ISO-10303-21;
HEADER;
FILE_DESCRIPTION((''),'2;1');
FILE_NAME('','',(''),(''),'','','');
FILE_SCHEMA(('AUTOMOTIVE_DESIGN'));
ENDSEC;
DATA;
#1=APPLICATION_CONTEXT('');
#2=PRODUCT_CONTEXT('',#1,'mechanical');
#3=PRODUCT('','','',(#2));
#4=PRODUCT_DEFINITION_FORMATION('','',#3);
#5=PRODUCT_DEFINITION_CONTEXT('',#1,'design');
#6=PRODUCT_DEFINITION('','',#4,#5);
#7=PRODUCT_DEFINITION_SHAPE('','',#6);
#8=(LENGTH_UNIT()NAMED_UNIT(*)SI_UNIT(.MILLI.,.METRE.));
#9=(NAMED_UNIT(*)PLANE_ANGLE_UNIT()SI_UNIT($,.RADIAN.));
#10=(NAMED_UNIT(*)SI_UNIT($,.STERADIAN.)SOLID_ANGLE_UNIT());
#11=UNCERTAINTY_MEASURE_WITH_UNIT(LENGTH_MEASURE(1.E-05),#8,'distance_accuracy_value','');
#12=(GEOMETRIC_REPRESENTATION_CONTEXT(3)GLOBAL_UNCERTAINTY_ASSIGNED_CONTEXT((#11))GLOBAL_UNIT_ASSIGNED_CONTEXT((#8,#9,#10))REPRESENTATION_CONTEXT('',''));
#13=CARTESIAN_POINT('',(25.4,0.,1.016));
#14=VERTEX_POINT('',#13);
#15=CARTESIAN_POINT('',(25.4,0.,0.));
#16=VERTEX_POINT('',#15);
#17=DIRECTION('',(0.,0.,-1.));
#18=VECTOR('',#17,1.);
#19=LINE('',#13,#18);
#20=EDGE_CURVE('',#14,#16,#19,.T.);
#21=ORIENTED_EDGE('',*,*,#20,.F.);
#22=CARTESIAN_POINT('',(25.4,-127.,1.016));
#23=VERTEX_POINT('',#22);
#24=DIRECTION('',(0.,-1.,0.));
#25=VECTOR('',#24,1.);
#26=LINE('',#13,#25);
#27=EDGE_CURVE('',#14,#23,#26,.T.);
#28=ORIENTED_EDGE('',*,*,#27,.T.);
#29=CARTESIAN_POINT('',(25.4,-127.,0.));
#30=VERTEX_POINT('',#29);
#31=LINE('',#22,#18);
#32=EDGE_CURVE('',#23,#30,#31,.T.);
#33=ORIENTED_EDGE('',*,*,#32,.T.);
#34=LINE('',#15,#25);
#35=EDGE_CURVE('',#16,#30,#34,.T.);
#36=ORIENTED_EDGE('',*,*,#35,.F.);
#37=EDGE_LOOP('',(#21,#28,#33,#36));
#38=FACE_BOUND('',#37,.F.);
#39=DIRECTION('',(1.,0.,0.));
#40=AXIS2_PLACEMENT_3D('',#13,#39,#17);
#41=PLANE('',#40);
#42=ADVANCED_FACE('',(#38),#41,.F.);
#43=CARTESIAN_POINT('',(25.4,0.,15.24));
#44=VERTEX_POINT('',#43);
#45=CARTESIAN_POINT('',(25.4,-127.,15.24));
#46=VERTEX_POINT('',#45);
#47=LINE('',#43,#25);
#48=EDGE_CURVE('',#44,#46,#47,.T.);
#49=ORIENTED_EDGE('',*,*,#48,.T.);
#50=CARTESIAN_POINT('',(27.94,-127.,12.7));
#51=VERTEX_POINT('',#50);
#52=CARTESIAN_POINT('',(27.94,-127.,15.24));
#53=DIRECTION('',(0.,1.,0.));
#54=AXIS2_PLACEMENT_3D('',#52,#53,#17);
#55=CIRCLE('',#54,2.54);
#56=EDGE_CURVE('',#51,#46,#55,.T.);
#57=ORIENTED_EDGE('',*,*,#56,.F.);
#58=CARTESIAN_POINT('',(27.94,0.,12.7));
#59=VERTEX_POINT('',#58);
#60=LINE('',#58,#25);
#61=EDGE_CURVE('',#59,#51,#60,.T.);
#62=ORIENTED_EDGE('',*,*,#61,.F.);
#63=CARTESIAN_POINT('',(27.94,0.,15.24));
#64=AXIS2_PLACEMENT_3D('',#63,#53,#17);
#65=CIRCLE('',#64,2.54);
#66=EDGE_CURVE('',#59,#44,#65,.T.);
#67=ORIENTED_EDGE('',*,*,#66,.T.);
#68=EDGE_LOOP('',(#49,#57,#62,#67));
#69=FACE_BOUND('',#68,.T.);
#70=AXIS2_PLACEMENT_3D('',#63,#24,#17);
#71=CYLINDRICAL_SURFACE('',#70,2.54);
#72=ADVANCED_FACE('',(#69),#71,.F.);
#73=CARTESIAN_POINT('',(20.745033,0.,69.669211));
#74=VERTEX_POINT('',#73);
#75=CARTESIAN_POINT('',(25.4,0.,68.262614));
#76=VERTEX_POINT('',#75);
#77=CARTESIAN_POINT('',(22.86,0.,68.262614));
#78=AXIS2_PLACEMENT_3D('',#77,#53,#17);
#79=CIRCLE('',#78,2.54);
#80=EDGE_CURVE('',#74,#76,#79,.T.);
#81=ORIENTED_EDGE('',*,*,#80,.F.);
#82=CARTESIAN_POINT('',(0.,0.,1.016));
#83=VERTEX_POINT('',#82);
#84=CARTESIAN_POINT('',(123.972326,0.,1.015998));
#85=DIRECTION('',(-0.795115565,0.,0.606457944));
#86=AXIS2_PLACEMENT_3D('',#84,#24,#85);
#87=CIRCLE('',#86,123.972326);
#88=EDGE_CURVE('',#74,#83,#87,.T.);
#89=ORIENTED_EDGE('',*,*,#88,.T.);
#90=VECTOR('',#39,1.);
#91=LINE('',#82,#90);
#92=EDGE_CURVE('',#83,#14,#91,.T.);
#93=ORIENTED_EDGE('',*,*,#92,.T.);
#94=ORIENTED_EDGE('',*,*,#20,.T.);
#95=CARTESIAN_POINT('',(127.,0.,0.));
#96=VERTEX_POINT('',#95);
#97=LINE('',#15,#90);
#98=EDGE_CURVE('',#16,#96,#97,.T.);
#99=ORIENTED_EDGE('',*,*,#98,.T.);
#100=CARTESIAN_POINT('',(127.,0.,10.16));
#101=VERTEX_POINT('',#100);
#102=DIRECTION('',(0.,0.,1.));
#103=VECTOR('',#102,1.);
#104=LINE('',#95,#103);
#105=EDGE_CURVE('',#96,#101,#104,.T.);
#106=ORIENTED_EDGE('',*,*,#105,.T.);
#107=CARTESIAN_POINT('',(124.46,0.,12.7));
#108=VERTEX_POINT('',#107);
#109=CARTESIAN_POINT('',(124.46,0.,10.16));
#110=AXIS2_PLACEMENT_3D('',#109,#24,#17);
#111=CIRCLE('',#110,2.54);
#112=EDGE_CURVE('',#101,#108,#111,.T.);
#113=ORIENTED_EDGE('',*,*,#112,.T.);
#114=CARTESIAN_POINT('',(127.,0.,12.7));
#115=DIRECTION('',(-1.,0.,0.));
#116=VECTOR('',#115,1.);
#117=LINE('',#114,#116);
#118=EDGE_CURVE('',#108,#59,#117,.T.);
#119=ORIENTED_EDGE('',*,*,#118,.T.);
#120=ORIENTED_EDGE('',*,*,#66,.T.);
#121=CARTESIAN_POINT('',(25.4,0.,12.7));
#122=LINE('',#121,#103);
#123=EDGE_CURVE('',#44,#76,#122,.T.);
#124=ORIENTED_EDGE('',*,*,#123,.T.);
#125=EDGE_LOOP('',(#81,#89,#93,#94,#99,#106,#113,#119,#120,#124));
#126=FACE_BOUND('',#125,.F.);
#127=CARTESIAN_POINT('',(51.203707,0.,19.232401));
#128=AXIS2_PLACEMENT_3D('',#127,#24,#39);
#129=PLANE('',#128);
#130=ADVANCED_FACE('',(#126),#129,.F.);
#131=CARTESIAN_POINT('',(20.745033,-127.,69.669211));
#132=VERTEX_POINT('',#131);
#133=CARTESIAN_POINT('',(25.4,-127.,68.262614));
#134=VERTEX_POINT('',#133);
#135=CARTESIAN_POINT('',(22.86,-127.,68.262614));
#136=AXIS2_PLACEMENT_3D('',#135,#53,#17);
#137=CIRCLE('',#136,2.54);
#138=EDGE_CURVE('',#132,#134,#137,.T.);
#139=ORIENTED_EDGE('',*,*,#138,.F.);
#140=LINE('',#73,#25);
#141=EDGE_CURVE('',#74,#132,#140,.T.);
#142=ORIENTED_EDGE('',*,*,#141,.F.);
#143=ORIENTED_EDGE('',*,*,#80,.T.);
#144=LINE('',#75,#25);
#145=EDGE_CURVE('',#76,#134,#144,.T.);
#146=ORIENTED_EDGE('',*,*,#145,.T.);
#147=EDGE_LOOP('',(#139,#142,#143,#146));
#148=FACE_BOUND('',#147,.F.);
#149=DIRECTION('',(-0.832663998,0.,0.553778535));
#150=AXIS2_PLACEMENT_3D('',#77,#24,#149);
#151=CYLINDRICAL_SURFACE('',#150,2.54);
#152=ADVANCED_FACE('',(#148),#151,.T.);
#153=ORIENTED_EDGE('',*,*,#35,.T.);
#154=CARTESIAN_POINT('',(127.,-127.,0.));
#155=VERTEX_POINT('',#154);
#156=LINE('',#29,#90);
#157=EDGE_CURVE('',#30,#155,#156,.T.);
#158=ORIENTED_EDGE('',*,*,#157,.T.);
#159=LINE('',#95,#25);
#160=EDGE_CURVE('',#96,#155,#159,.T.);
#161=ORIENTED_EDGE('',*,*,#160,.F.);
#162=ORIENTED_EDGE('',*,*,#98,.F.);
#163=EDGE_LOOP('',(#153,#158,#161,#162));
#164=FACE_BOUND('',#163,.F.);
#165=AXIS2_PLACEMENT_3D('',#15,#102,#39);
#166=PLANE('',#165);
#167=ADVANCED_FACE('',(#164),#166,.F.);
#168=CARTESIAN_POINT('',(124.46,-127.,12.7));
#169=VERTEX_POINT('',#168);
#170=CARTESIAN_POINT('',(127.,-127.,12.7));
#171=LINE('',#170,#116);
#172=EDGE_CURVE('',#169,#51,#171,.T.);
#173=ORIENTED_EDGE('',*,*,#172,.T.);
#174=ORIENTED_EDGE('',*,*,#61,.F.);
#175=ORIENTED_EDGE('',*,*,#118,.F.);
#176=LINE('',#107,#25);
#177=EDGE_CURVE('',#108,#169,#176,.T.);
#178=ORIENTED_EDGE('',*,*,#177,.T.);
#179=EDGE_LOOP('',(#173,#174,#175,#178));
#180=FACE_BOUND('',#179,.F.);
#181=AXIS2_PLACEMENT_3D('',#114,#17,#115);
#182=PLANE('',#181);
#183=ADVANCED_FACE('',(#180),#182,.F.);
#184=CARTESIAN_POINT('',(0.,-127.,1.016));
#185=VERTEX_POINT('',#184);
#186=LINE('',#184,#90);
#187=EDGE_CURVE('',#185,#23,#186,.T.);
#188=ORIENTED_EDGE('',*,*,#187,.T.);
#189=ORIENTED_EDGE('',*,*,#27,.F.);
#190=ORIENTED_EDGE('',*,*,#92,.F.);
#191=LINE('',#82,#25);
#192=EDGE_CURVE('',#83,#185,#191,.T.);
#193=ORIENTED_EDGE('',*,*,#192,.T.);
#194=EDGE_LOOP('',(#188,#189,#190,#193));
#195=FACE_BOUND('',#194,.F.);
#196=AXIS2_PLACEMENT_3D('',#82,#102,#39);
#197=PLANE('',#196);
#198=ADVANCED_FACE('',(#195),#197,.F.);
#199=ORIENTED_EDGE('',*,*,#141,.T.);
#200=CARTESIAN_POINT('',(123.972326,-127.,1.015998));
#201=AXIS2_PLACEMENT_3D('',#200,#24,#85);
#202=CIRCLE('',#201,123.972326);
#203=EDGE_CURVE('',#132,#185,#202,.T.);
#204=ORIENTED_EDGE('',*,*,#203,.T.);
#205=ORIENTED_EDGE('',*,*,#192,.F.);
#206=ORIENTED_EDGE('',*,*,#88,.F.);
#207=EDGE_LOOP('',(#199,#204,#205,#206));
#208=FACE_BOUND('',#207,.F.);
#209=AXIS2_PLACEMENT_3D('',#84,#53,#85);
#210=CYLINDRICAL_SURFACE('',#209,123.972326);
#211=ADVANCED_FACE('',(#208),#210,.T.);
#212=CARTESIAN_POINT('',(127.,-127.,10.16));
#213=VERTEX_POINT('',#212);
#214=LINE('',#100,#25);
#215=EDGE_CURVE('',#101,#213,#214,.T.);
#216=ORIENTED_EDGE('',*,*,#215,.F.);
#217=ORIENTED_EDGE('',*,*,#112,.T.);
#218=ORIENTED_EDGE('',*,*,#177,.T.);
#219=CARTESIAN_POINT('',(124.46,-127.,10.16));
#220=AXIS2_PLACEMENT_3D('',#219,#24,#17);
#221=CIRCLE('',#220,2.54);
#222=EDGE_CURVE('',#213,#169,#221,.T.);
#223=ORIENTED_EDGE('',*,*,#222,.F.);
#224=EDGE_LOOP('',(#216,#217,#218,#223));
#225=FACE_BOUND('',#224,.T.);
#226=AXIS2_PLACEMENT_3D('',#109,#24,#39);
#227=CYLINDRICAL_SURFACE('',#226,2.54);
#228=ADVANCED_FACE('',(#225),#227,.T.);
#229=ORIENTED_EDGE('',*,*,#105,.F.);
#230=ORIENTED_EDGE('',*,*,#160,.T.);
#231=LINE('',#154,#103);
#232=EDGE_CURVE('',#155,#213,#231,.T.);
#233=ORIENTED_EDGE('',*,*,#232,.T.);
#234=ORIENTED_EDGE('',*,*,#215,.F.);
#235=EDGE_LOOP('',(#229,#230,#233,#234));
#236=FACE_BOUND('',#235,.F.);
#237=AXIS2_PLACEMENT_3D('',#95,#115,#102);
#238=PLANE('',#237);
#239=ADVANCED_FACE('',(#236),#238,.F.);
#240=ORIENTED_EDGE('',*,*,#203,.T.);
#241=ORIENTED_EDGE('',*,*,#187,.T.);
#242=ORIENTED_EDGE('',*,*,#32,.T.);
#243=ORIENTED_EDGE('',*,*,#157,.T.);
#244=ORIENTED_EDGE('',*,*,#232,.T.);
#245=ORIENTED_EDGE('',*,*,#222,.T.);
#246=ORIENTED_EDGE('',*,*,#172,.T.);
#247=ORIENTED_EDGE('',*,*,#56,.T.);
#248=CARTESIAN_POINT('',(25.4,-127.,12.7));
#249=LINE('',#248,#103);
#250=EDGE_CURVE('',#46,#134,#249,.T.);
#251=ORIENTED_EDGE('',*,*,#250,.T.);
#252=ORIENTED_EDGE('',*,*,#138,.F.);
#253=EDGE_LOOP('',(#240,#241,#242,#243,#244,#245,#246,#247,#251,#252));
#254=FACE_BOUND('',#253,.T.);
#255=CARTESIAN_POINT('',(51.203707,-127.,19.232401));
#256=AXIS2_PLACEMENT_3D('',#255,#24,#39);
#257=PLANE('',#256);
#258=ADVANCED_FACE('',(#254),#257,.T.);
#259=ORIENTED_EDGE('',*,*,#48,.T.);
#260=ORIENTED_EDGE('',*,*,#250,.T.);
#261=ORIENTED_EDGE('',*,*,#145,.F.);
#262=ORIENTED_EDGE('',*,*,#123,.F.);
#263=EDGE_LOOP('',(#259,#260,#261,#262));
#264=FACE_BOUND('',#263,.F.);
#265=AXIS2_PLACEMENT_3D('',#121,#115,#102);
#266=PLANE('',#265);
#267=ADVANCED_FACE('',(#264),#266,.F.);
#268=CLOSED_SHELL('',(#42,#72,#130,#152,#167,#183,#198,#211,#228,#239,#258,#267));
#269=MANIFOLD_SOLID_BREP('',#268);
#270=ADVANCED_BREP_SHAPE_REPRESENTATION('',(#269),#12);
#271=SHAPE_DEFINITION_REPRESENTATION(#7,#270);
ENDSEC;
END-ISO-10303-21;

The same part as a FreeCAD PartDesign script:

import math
import FreeCAD as App
import Part
import Sketcher

V = App.Vector
Q = App.Units.Quantity


def edges_at(feature, points):
    """Names of the edges that pass closest to the given points."""
    edges = feature.Shape.Edges
    near = lambda p: min(range(len(edges)), key=lambda i: edges[i].distToShape(Part.Vertex(*p))[0])
    return sorted({f"Edge{near(p) + 1}" for p in points})

doc = App.newDocument("Part")
body = doc.addObject("PartDesign::Body", "Body")

# Sketch on XZ plane
sketch1 = body.newObject("Sketcher::SketchObject", "Sketch")
sketch1.AttachmentSupport = (doc.getObject("XZ_Plane"), [""])
sketch1.MapMode = "FlatFace"
sketch1.addGeometry(Part.ArcOfCircle(Part.Circle(V(123.972326, 1.015998, 0), V(0, 0, 1), 123.972326), math.radians(142.666172), math.radians(179.999999)), False)
sketch1.addGeometry(Part.LineSegment(V(0, 1.016, 0), V(25.4, 1.016, 0)), False)
sketch1.addGeometry(Part.LineSegment(V(25.4, 1.016, 0), V(25.4, 0, 0)), False)
sketch1.addGeometry(Part.LineSegment(V(25.4, 0, 0), V(127, 0, 0)), False)
sketch1.addGeometry(Part.LineSegment(V(127, 0, 0), V(127, 12.7, 0)), False)
sketch1.addGeometry(Part.LineSegment(V(127, 12.7, 0), V(25.4, 12.7, 0)), False)
sketch1.addGeometry(Part.LineSegment(V(25.4, 12.7, 0), V(25.4, 76.2, 0)), False)
sketch1.addConstraint(Sketcher.Constraint("Coincident", 0, 2, 1, 1))
sketch1.addConstraint(Sketcher.Constraint("Coincident", 1, 2, 2, 1))
sketch1.addConstraint(Sketcher.Constraint("Coincident", 2, 2, 3, 1))
sketch1.addConstraint(Sketcher.Constraint("Coincident", 3, 2, 4, 1))
sketch1.addConstraint(Sketcher.Constraint("Coincident", 4, 2, 5, 1))
sketch1.addConstraint(Sketcher.Constraint("Coincident", 5, 2, 6, 1))
sketch1.addConstraint(Sketcher.Constraint("Coincident", 6, 2, 0, 1))
sketch1.addConstraint(Sketcher.Constraint("Horizontal", 1))
sketch1.addConstraint(Sketcher.Constraint("Vertical", 2))
sketch1.addConstraint(Sketcher.Constraint("Horizontal", 3))
sketch1.addConstraint(Sketcher.Constraint("Vertical", 4))
sketch1.addConstraint(Sketcher.Constraint("Horizontal", 5))
sketch1.addConstraint(Sketcher.Constraint("Vertical", 6))
sketch1.addConstraint(Sketcher.Constraint("PointOnObject", 0, 2, -2))
sketch1.addConstraint(Sketcher.Constraint("PointOnObject", 2, 2, -1))
sketch1.addConstraint(Sketcher.Constraint("Vertical", 2, 2, 5, 2))
sketch1.addConstraint(Sketcher.Constraint("DistanceX", 1, 1, 1, 2, Q("1 in")))
sketch1.addConstraint(Sketcher.Constraint("DistanceX", 3, 1, 3, 2, Q("4 in")))
sketch1.addConstraint(Sketcher.Constraint("DistanceY", 4, 1, 4, 2, Q("0.5 in")))
sketch1.addConstraint(Sketcher.Constraint("DistanceY", 6, 1, 6, 2, Q("2.5 in")))
sketch1.addConstraint(Sketcher.Constraint("DistanceY", 2, 2, 2, 1, Q("0.04 in")))
sketch1.addConstraint(Sketcher.Constraint("DistanceY", -1, 1, 0, 3, Q("0.0399999 in")))
pad1 = body.newObject("PartDesign::Pad", "Pad")
pad1.Profile = sketch1
pad1.Length = Q("5 in")
doc.recompute()

fillet = body.newObject("PartDesign::Fillet", "Fillet")
fillet.Base = (pad1, edges_at(pad1, [(25.4, -63.5, 76.2), (25.4, -63.5, 12.7), (127, -63.5, 12.7)]))
fillet.Radius = Q("0.1 in")

doc.recompute()
